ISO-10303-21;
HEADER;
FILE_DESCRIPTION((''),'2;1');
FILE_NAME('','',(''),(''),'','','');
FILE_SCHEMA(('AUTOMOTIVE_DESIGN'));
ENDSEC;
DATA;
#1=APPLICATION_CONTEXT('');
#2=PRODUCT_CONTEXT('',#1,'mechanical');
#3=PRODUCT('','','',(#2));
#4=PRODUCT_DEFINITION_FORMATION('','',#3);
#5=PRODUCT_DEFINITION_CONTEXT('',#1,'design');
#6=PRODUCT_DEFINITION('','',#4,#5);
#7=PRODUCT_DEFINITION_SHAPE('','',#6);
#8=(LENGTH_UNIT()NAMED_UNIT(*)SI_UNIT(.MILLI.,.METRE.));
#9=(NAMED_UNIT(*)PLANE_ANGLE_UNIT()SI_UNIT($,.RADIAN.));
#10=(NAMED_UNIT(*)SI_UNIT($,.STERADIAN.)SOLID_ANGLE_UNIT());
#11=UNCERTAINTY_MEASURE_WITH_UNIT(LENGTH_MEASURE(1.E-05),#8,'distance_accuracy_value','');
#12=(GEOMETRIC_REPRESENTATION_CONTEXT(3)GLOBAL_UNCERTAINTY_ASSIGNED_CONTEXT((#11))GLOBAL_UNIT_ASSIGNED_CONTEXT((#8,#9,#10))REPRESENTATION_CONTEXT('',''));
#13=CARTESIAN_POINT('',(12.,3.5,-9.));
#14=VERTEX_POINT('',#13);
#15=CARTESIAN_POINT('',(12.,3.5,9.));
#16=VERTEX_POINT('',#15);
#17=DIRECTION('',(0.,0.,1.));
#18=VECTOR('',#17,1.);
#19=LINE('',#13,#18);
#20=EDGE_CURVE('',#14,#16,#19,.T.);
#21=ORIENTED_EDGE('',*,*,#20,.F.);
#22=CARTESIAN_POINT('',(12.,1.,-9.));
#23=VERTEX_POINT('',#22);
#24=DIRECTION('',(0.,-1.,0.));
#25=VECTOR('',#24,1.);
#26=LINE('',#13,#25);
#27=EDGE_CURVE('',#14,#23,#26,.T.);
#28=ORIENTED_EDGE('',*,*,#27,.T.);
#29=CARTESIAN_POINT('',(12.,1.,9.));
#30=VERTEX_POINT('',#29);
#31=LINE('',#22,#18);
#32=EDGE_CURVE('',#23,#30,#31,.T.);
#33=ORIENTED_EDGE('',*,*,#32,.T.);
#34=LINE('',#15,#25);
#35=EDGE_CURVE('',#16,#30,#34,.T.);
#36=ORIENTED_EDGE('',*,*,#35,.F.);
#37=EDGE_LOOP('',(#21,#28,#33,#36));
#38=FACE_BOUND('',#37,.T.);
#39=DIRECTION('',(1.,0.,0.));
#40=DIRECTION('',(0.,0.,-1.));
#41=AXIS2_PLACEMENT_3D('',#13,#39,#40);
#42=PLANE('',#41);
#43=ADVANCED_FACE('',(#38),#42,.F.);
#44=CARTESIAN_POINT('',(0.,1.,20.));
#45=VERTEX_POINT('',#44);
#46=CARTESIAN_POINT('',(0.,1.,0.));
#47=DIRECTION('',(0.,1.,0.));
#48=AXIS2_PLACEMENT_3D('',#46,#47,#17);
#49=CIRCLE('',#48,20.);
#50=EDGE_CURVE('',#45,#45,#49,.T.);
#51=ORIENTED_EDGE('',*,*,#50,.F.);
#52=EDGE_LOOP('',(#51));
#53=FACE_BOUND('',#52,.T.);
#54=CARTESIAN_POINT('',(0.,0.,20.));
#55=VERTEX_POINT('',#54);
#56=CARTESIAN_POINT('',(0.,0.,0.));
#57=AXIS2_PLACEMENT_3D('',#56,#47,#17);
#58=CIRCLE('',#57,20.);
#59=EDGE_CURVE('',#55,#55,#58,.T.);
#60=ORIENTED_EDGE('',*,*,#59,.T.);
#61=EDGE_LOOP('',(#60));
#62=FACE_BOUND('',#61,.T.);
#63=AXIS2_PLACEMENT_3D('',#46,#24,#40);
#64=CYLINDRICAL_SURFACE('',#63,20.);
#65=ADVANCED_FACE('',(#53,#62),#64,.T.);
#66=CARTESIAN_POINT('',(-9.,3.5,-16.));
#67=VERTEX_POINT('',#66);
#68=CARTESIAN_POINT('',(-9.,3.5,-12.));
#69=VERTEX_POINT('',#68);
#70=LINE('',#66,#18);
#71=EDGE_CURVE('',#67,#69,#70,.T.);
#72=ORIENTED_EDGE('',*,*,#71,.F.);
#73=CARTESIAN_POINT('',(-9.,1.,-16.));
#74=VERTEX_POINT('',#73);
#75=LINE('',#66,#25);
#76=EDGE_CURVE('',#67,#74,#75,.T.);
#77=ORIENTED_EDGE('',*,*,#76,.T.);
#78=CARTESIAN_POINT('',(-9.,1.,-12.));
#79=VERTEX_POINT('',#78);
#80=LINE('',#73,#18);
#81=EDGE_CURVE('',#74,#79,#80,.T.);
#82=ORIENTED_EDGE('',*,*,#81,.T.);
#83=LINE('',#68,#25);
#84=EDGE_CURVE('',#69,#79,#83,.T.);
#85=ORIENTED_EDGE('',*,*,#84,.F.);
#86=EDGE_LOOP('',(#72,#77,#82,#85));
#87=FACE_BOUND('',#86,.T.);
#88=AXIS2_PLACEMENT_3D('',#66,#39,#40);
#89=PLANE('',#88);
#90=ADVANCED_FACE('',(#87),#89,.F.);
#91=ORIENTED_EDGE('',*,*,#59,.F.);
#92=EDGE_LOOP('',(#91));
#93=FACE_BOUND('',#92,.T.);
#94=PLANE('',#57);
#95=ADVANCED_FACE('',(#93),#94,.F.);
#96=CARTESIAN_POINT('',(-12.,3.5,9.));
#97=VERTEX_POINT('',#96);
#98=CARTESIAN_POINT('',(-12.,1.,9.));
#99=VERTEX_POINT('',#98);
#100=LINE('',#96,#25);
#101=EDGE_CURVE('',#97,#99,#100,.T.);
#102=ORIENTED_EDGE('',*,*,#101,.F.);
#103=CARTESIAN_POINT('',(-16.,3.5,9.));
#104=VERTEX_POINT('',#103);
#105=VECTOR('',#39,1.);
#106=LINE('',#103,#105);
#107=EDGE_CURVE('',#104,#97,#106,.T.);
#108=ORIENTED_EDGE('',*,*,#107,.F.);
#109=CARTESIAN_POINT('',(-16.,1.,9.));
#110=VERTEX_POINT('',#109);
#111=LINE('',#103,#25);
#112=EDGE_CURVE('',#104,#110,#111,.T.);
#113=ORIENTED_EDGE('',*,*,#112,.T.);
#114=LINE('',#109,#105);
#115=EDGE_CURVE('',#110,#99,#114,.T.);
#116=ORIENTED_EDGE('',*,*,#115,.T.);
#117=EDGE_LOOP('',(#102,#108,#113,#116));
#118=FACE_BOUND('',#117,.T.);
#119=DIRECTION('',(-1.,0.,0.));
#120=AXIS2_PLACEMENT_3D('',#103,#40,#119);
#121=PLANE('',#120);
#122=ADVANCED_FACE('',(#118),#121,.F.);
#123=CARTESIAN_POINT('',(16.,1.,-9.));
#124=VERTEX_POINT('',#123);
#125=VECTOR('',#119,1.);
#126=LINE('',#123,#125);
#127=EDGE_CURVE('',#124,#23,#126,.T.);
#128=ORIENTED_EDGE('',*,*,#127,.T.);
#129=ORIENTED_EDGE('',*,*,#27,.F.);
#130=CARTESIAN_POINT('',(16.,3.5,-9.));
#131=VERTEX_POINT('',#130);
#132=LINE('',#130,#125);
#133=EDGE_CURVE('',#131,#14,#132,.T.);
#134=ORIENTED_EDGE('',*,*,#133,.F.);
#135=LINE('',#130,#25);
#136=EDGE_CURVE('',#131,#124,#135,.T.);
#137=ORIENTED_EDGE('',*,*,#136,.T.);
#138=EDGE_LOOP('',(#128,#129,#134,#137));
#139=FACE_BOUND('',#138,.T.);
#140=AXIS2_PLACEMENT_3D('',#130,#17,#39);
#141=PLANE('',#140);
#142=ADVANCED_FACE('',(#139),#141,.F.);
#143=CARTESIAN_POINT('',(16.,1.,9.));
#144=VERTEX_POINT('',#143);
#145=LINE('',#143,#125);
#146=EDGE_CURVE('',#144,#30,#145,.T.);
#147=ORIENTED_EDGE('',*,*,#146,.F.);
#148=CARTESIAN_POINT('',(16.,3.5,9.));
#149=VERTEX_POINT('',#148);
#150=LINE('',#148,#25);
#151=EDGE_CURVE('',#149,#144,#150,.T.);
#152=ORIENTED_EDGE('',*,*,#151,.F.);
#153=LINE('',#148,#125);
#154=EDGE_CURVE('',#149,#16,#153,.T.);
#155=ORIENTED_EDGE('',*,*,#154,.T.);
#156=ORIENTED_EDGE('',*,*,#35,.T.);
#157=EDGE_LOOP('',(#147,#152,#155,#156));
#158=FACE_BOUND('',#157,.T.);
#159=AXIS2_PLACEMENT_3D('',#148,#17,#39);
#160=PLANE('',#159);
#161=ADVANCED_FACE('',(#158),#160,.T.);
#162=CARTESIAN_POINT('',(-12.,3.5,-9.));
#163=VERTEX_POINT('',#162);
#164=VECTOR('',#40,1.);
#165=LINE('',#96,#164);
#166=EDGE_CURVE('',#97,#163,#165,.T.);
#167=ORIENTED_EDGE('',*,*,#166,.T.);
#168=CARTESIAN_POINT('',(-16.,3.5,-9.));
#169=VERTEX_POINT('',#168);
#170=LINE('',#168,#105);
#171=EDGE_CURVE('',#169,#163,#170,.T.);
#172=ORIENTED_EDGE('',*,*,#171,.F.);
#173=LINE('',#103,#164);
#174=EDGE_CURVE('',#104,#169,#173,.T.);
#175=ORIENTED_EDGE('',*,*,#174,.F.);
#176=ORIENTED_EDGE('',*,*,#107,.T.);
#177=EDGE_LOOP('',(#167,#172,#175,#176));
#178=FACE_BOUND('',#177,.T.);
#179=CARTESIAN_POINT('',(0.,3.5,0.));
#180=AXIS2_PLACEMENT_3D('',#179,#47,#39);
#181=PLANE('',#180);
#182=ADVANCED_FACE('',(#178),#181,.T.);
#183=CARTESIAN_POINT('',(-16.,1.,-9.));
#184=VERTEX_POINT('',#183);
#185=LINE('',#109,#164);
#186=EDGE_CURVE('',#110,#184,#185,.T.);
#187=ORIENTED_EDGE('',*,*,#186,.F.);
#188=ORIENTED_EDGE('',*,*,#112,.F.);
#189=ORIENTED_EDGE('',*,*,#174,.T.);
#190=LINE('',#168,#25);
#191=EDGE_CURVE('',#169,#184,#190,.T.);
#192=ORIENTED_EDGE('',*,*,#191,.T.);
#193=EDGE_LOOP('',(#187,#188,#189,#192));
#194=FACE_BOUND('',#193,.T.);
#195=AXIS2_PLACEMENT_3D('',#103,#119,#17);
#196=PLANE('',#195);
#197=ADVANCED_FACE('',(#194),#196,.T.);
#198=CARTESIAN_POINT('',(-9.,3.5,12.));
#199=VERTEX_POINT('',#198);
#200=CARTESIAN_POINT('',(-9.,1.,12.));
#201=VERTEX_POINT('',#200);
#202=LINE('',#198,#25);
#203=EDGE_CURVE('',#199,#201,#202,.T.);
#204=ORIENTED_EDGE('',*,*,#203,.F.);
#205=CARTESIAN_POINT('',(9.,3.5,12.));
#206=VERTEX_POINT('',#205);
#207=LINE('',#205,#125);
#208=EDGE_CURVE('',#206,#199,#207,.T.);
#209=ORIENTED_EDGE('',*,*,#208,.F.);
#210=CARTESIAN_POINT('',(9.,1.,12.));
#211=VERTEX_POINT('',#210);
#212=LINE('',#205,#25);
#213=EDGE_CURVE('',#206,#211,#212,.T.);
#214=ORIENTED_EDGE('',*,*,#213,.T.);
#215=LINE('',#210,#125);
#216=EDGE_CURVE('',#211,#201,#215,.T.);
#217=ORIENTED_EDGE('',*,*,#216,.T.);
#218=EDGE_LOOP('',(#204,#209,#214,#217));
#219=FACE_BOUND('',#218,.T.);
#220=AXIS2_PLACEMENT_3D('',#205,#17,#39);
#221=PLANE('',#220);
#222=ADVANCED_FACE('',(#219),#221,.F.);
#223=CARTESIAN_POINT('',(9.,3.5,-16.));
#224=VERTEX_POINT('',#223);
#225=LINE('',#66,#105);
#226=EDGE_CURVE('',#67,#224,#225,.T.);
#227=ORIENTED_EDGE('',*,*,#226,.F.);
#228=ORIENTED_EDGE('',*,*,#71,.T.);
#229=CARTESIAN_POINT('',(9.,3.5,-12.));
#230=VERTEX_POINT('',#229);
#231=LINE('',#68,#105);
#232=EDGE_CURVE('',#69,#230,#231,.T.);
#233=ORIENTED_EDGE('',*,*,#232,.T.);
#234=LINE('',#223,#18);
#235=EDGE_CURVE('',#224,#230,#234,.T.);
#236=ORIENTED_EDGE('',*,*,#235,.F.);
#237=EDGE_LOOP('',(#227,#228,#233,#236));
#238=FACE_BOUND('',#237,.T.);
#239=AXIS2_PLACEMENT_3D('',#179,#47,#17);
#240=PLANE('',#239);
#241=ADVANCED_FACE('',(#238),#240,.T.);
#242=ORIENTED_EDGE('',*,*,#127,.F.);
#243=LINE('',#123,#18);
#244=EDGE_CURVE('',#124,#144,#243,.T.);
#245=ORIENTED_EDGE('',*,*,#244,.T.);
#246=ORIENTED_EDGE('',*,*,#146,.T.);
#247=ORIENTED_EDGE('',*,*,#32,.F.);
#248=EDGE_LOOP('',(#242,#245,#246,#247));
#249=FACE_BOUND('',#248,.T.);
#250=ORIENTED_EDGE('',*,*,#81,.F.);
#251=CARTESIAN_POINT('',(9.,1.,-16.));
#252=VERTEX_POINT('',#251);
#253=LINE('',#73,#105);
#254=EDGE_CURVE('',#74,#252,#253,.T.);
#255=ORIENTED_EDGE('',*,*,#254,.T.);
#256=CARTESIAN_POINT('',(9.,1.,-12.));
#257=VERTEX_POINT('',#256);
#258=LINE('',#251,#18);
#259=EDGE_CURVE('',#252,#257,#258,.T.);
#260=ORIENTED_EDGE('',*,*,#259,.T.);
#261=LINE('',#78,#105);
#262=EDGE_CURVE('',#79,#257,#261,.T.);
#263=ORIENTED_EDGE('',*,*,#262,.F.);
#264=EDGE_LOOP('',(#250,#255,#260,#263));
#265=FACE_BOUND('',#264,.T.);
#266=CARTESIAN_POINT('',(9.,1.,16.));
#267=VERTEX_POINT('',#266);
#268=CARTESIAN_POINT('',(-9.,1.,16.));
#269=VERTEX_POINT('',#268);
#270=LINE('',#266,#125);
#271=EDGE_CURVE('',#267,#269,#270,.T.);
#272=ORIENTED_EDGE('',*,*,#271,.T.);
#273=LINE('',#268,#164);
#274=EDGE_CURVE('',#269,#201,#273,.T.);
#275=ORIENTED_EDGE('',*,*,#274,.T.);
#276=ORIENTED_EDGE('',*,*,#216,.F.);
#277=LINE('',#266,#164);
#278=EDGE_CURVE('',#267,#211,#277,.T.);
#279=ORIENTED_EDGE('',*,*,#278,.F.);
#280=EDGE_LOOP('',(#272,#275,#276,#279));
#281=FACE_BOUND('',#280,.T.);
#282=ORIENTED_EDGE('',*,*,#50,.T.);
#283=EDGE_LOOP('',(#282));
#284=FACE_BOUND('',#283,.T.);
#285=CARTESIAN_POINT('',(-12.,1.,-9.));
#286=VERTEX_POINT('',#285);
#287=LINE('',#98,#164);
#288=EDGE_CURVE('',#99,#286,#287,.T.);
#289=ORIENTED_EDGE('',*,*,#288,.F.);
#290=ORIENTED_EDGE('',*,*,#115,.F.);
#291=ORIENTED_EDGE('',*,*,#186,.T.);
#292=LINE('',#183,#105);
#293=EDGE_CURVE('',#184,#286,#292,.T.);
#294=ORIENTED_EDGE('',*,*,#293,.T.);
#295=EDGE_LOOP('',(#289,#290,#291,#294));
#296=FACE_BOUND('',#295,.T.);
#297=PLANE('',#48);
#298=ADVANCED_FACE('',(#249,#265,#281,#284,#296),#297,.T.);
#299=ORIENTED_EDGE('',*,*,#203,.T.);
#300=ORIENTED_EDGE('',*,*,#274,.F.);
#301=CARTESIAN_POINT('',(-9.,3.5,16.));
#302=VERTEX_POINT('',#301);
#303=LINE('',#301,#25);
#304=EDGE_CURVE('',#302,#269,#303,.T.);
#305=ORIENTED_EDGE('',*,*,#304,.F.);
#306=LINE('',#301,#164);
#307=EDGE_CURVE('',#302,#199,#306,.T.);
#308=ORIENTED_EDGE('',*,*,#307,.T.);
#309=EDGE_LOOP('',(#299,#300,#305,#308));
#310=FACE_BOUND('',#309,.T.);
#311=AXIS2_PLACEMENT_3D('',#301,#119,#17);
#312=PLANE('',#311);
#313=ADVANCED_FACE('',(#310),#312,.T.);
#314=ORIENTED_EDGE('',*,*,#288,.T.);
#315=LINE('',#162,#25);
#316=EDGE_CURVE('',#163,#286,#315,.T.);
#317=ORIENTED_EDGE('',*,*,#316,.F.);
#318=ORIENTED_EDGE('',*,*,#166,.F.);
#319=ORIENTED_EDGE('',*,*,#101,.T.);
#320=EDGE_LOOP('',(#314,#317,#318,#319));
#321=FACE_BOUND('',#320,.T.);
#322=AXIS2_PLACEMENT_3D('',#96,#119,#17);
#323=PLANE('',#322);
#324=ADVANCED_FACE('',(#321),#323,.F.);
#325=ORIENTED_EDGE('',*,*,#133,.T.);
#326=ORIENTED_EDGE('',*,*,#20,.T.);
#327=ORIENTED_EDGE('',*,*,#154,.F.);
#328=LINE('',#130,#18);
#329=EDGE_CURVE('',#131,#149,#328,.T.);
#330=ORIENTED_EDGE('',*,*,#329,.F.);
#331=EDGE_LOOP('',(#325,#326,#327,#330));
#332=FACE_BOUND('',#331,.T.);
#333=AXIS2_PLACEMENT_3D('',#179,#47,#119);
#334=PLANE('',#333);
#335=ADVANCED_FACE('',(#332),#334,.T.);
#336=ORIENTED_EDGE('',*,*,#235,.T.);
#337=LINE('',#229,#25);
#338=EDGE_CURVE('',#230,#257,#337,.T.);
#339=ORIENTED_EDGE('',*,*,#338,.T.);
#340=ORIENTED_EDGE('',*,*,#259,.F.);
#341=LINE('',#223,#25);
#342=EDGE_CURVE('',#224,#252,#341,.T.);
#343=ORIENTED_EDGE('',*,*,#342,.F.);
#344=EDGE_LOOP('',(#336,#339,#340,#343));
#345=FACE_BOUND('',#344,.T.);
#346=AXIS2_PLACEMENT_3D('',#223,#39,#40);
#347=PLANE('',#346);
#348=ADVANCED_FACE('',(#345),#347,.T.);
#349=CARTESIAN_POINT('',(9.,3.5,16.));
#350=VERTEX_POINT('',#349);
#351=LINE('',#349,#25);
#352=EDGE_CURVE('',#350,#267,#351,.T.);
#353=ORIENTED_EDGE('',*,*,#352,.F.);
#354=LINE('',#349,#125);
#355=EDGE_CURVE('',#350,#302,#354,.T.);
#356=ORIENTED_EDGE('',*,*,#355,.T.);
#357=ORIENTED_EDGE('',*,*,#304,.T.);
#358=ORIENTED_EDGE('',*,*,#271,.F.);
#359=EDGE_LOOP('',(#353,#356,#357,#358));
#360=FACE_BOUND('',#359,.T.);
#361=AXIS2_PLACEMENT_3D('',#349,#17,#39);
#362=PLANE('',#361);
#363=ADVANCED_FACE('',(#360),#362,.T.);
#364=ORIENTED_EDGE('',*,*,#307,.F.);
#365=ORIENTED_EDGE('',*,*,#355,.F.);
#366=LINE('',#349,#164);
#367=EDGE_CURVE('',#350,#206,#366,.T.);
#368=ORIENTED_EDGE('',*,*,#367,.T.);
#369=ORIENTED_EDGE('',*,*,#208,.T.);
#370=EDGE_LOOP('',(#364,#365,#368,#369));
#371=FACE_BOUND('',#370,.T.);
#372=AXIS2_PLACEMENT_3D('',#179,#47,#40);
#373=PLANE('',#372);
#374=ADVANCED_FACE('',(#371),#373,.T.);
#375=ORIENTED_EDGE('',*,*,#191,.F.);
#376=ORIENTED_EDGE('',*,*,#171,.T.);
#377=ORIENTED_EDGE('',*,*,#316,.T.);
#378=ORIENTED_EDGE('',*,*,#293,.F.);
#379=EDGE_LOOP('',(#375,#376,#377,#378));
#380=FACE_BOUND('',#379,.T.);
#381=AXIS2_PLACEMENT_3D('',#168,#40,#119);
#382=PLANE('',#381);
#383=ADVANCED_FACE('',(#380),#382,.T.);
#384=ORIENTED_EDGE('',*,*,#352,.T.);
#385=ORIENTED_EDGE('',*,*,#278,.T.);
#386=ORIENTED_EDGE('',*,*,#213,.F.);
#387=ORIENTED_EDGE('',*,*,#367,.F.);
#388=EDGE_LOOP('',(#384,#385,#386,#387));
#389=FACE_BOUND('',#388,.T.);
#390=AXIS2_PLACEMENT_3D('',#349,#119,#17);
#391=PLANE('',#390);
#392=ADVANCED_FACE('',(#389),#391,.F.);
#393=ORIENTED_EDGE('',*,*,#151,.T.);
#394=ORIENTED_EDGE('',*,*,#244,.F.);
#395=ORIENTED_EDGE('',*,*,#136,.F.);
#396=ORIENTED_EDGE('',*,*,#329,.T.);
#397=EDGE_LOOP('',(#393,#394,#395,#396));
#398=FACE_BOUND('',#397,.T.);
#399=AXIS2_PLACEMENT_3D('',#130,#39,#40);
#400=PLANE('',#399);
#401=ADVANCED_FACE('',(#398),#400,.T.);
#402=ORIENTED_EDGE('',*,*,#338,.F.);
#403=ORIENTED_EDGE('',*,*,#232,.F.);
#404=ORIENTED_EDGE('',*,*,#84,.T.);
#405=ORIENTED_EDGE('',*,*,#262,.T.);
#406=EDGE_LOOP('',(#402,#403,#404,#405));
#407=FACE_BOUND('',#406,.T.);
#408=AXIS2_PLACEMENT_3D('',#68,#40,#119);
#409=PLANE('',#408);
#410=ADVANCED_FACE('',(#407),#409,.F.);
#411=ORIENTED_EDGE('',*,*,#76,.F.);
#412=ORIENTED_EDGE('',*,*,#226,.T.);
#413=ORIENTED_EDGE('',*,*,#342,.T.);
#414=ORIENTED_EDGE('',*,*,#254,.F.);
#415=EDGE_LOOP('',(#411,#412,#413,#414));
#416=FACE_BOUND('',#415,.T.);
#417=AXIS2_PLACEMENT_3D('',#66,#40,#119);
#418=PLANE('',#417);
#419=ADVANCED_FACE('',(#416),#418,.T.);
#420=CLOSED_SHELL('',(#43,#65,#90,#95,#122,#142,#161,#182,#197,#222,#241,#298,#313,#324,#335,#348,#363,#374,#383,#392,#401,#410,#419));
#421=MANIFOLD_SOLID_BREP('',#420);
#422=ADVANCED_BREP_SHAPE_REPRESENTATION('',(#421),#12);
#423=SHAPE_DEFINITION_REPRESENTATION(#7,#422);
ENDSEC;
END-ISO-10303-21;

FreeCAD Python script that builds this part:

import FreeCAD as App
import Part
import Sketcher

V = App.Vector

doc = App.newDocument("Part")
body = doc.addObject("PartDesign::Body", "Body")

sketch1 = body.newObject("Sketcher::SketchObject", "Sketch")
sketch1.AttachmentSupport = (doc.getObject("XZ_Plane"), [""])
sketch1.MapMode = "FlatFace"
sketch1.addGeometry(Part.Circle(V(0, 0, 0), V(0, 0, 1), 20), False)
sketch1.addConstraint([
    Sketcher.Constraint("Coincident", 0, 3, -1, 1),
    Sketcher.Constraint("Diameter", 0, 40.0),
])
pad1 = body.newObject("PartDesign::Pad", "Pad")
pad1.Profile = sketch1
pad1.Length = 1
pad1.Reversed = True

sketch2 = body.newObject("Sketcher::SketchObject", "Sketch001")
sketch2.AttachmentSupport = (doc.getObject("XZ_Plane"), [""])
sketch2.MapMode = "FlatFace"
sketch2.AttachmentOffset = App.Placement(V(0, 0, -1), App.Rotation())
sketch2.addGeometry([
    Part.LineSegment(V(-9, -16, 0), V(-9, -12, 0)),
    Part.LineSegment(V(-9, -12, 0), V(9, -12, 0)),
    Part.LineSegment(V(9, -12, 0), V(9, -16, 0)),
    Part.LineSegment(V(9, -16, 0), V(-9, -16, 0)),
], False)
sketch2.addConstraint([
    Sketcher.Constraint("Coincident", 0, 2, 1, 1),
    Sketcher.Constraint("Coincident", 1, 2, 2, 1),
    Sketcher.Constraint("Coincident", 2, 2, 3, 1),
    Sketcher.Constraint("Coincident", 3, 2, 0, 1),
    Sketcher.Constraint("Vertical", 0),
    Sketcher.Constraint("Horizontal", 1),
    Sketcher.Constraint("Vertical", 2),
    Sketcher.Constraint("Horizontal", 3),
    Sketcher.Constraint("DistanceX", 1, 1, 1, 2, 18.0),
    Sketcher.Constraint("DistanceY", 0, 1, 0, 2, 4.0),
    Sketcher.Constraint("DistanceX", 0, 2, -1, 1, 9.0),
    Sketcher.Constraint("DistanceY", 0, 2, -1, 1, 12.0),
])
pad2 = body.newObject("PartDesign::Pad", "Pad001")
pad2.Profile = sketch2
pad2.Length = 2.5
pad2.Reversed = True
doc.recompute()

polarpattern = body.newObject("PartDesign::PolarPattern", "PolarPattern")
polarpattern.Originals = [pad2]
polarpattern.Axis = (doc.getObject("Y_Axis"), [""])
polarpattern.Angle = 360
polarpattern.Occurrences = 4
body.Tip = polarpattern

doc.recompute()
